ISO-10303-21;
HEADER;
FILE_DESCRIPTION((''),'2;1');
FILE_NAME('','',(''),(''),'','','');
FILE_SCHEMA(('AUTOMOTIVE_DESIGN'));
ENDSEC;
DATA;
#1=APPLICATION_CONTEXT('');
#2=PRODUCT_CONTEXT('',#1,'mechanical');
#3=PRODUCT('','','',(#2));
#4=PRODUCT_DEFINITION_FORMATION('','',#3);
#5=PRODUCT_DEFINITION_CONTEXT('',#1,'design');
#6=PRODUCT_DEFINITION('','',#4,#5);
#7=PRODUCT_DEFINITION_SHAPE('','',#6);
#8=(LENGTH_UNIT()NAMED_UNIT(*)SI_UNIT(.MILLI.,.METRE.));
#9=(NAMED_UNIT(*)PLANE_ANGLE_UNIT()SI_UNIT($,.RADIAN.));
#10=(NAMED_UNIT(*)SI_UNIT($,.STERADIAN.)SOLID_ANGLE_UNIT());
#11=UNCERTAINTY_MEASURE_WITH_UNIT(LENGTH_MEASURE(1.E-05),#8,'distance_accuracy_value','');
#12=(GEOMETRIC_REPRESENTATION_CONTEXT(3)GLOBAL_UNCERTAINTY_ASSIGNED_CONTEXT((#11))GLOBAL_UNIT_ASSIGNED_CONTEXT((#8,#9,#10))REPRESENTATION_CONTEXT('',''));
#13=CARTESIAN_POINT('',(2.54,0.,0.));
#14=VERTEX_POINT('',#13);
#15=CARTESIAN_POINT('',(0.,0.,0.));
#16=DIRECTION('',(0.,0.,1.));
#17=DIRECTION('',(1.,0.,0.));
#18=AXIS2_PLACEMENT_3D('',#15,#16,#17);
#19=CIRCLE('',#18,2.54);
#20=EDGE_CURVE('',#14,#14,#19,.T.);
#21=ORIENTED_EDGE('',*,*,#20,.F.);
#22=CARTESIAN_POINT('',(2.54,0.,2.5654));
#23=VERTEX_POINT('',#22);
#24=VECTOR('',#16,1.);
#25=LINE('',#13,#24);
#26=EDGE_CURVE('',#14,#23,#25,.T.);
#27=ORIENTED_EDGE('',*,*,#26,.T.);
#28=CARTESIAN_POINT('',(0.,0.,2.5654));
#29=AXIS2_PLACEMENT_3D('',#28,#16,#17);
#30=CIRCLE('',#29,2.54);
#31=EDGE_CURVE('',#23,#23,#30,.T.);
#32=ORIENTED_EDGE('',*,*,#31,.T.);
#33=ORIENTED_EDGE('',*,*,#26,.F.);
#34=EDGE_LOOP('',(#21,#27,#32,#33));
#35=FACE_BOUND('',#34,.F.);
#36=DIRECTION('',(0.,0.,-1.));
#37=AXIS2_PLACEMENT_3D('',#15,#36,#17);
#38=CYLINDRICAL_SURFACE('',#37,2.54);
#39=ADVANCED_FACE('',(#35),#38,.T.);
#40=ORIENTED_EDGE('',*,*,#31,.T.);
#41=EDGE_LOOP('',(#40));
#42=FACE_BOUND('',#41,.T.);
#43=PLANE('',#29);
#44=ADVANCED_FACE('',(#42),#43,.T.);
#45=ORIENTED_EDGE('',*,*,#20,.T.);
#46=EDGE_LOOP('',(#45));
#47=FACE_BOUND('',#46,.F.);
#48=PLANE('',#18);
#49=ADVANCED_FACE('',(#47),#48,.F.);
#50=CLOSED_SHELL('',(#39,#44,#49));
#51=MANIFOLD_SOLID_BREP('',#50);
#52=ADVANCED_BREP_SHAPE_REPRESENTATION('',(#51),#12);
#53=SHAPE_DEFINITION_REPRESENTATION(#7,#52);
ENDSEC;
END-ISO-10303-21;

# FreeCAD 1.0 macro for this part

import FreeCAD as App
import Part
import Sketcher

V = App.Vector
Q = App.Units.Quantity

doc = App.newDocument("Part")
body = doc.addObject("PartDesign::Body", "Body")

sketch1 = body.newObject("Sketcher::SketchObject", "Sketch")
sketch1.AttachmentSupport = (doc.getObject("XY_Plane"), [""])
sketch1.MapMode = "FlatFace"
sketch1.addGeometry(Part.Circle(V(0, 0, 0), V(0, 0, 1), 2.54), False)
sketch1.addConstraint(Sketcher.Constraint("Coincident", 0, 3, -1, 1))
sketch1.addConstraint(Sketcher.Constraint("Diameter", 0, Q("0.2 in")))
pad1 = body.newObject("PartDesign::Pad", "Pad")
pad1.Profile = sketch1
pad1.Length = Q("0.4 in")

sketch2 = body.newObject("Sketcher::SketchObject", "Sketch001")
sketch2.AttachmentSupport = (doc.getObject("XY_Plane"), [""])
sketch2.MapMode = "FlatFace"
sketch2.AttachmentOffset = App.Placement(V(0, 0, 0.401 * 25.4), App.Rotation())
sketch2.addGeometry(Part.Circle(V(0, 0, 0), V(0, 0, 1), 2.54), False)
sketch2.addConstraint(Sketcher.Constraint("Coincident", 0, 3, -1, 1))
sketch2.addConstraint(Sketcher.Constraint("Diameter", 0, Q("0.2 in")))
pocket1 = body.newObject("PartDesign::Pocket", "Pocket")
pocket1.Profile = sketch2
pocket1.Length = Q("0.3 in")

doc.recompute()
